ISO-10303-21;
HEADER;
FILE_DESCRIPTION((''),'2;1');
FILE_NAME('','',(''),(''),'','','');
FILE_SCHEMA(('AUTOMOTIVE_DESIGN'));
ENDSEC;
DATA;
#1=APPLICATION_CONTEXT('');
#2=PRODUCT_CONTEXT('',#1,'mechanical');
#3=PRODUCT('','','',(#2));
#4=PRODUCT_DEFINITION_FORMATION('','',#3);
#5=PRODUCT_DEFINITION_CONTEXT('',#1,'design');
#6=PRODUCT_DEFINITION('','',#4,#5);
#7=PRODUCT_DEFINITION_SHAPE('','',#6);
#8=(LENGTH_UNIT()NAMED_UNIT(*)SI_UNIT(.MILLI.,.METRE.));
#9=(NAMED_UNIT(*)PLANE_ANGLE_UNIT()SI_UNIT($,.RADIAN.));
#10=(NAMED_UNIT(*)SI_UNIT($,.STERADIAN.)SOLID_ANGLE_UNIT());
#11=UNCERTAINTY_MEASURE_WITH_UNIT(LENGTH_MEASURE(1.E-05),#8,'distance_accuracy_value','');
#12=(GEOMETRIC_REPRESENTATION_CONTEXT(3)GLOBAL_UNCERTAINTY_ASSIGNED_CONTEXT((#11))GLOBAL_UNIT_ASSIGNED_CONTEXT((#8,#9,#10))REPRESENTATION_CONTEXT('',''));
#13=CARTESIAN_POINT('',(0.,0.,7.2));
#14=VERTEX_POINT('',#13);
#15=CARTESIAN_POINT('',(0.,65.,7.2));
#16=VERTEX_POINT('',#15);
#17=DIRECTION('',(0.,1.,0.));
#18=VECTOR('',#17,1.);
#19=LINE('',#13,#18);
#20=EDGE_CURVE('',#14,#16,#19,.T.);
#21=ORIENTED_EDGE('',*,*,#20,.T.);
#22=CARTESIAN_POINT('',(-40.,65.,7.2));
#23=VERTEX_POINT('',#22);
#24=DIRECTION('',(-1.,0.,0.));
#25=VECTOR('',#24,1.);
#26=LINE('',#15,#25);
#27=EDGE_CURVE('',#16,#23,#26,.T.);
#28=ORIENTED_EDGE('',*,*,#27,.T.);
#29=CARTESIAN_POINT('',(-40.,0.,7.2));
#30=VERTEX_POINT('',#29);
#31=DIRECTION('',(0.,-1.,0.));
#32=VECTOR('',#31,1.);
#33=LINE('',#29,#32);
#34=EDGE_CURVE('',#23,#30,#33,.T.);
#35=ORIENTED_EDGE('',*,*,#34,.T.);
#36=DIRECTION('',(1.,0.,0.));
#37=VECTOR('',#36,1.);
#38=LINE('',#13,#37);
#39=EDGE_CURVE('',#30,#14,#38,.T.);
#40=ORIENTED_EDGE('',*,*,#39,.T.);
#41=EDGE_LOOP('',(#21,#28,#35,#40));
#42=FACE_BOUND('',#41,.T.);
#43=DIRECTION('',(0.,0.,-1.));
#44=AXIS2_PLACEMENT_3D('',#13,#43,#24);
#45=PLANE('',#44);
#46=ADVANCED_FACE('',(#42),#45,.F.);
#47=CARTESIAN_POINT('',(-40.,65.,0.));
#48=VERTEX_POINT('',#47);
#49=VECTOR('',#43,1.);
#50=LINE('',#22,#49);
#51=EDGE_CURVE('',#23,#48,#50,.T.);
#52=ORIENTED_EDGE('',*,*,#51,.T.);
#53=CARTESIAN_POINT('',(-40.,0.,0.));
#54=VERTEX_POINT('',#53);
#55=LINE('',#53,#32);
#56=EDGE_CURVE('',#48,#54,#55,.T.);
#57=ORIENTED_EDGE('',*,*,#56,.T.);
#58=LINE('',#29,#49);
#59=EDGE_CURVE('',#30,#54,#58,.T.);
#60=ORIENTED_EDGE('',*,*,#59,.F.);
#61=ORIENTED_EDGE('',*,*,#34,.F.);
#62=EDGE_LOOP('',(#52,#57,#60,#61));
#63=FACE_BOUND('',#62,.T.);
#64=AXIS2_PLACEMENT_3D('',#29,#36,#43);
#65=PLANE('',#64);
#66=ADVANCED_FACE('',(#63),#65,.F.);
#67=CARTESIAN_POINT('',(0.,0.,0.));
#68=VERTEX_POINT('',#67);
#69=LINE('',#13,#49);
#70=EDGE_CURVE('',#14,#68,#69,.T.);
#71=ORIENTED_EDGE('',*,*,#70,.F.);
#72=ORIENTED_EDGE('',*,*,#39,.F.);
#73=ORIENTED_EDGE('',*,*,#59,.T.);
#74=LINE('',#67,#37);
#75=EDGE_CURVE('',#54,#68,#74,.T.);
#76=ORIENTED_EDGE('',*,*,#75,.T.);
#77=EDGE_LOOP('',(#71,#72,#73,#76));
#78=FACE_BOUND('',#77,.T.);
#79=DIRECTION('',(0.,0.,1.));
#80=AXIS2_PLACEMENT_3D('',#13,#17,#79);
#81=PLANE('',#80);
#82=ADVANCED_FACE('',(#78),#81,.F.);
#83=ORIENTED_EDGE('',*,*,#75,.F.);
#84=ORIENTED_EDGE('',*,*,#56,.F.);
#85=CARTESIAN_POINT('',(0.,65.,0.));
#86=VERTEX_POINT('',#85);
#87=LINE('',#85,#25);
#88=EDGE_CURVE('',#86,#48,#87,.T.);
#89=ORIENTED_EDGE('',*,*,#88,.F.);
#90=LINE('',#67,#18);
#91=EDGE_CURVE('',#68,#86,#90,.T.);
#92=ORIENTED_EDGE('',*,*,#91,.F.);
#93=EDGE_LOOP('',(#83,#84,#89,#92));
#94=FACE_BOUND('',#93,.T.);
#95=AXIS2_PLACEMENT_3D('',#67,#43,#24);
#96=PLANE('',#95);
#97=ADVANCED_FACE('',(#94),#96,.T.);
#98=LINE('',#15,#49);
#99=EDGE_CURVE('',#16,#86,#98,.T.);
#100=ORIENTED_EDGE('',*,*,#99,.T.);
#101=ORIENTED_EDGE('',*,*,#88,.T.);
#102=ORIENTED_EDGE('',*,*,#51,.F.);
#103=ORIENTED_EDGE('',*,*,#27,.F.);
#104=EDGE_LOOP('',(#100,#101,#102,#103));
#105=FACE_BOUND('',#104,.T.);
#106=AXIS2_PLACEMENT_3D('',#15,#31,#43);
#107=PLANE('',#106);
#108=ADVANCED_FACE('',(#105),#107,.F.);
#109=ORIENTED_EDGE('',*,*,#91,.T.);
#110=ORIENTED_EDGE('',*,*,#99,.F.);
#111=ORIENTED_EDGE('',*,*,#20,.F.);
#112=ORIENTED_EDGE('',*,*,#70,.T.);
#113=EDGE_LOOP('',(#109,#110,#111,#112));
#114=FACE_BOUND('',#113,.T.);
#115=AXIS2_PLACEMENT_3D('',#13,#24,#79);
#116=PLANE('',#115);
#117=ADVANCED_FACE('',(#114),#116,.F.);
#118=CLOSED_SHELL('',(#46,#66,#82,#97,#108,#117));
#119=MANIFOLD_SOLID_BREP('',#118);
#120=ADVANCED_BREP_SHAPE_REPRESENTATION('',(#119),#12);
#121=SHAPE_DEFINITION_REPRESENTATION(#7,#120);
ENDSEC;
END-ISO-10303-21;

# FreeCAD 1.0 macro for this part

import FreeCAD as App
import Part
import Sketcher

doc = App.newDocument("Part")
body = doc.addObject("PartDesign::Body", "Body")

# Sketch on XY plane
sketch1 = body.newObject("Sketcher::SketchObject", "Sketch")
sketch1.AttachmentSupport = (doc.getObject("XY_Plane"), [""])
sketch1.MapMode = "FlatFace"
sketch1.addGeometry([
    Part.LineSegment(App.Vector(-40, 0, 0), App.Vector(0, 0, 0)),
    Part.LineSegment(App.Vector(0, 0, 0), App.Vector(0, 65, 0)),
    Part.LineSegment(App.Vector(0, 65, 0), App.Vector(-40, 65, 0)),
    Part.LineSegment(App.Vector(-40, 65, 0), App.Vector(-40, 0, 0)),
], False)
sketch1.addConstraint([
    Sketcher.Constraint("Coincident", 0, 2, 1, 1),
    Sketcher.Constraint("Coincident", 1, 2, 2, 1),
    Sketcher.Constraint("Coincident", 2, 2, 3, 1),
    Sketcher.Constraint("Coincident", 3, 2, 0, 1),
    Sketcher.Constraint("Horizontal", 0),
    Sketcher.Constraint("Vertical", 1),
    Sketcher.Constraint("Horizontal", 2),
    Sketcher.Constraint("Vertical", 3),
    Sketcher.Constraint("Coincident", 0, 2, -1, 1),
    Sketcher.Constraint("DistanceX", 0, 1, 0, 2, 40.0),
    Sketcher.Constraint("DistanceY", 1, 1, 1, 2, 65.0),
])
pad1 = body.newObject("PartDesign::Pad", "Pad")
pad1.Profile = sketch1
pad1.Length = 7.2

doc.recompute()
